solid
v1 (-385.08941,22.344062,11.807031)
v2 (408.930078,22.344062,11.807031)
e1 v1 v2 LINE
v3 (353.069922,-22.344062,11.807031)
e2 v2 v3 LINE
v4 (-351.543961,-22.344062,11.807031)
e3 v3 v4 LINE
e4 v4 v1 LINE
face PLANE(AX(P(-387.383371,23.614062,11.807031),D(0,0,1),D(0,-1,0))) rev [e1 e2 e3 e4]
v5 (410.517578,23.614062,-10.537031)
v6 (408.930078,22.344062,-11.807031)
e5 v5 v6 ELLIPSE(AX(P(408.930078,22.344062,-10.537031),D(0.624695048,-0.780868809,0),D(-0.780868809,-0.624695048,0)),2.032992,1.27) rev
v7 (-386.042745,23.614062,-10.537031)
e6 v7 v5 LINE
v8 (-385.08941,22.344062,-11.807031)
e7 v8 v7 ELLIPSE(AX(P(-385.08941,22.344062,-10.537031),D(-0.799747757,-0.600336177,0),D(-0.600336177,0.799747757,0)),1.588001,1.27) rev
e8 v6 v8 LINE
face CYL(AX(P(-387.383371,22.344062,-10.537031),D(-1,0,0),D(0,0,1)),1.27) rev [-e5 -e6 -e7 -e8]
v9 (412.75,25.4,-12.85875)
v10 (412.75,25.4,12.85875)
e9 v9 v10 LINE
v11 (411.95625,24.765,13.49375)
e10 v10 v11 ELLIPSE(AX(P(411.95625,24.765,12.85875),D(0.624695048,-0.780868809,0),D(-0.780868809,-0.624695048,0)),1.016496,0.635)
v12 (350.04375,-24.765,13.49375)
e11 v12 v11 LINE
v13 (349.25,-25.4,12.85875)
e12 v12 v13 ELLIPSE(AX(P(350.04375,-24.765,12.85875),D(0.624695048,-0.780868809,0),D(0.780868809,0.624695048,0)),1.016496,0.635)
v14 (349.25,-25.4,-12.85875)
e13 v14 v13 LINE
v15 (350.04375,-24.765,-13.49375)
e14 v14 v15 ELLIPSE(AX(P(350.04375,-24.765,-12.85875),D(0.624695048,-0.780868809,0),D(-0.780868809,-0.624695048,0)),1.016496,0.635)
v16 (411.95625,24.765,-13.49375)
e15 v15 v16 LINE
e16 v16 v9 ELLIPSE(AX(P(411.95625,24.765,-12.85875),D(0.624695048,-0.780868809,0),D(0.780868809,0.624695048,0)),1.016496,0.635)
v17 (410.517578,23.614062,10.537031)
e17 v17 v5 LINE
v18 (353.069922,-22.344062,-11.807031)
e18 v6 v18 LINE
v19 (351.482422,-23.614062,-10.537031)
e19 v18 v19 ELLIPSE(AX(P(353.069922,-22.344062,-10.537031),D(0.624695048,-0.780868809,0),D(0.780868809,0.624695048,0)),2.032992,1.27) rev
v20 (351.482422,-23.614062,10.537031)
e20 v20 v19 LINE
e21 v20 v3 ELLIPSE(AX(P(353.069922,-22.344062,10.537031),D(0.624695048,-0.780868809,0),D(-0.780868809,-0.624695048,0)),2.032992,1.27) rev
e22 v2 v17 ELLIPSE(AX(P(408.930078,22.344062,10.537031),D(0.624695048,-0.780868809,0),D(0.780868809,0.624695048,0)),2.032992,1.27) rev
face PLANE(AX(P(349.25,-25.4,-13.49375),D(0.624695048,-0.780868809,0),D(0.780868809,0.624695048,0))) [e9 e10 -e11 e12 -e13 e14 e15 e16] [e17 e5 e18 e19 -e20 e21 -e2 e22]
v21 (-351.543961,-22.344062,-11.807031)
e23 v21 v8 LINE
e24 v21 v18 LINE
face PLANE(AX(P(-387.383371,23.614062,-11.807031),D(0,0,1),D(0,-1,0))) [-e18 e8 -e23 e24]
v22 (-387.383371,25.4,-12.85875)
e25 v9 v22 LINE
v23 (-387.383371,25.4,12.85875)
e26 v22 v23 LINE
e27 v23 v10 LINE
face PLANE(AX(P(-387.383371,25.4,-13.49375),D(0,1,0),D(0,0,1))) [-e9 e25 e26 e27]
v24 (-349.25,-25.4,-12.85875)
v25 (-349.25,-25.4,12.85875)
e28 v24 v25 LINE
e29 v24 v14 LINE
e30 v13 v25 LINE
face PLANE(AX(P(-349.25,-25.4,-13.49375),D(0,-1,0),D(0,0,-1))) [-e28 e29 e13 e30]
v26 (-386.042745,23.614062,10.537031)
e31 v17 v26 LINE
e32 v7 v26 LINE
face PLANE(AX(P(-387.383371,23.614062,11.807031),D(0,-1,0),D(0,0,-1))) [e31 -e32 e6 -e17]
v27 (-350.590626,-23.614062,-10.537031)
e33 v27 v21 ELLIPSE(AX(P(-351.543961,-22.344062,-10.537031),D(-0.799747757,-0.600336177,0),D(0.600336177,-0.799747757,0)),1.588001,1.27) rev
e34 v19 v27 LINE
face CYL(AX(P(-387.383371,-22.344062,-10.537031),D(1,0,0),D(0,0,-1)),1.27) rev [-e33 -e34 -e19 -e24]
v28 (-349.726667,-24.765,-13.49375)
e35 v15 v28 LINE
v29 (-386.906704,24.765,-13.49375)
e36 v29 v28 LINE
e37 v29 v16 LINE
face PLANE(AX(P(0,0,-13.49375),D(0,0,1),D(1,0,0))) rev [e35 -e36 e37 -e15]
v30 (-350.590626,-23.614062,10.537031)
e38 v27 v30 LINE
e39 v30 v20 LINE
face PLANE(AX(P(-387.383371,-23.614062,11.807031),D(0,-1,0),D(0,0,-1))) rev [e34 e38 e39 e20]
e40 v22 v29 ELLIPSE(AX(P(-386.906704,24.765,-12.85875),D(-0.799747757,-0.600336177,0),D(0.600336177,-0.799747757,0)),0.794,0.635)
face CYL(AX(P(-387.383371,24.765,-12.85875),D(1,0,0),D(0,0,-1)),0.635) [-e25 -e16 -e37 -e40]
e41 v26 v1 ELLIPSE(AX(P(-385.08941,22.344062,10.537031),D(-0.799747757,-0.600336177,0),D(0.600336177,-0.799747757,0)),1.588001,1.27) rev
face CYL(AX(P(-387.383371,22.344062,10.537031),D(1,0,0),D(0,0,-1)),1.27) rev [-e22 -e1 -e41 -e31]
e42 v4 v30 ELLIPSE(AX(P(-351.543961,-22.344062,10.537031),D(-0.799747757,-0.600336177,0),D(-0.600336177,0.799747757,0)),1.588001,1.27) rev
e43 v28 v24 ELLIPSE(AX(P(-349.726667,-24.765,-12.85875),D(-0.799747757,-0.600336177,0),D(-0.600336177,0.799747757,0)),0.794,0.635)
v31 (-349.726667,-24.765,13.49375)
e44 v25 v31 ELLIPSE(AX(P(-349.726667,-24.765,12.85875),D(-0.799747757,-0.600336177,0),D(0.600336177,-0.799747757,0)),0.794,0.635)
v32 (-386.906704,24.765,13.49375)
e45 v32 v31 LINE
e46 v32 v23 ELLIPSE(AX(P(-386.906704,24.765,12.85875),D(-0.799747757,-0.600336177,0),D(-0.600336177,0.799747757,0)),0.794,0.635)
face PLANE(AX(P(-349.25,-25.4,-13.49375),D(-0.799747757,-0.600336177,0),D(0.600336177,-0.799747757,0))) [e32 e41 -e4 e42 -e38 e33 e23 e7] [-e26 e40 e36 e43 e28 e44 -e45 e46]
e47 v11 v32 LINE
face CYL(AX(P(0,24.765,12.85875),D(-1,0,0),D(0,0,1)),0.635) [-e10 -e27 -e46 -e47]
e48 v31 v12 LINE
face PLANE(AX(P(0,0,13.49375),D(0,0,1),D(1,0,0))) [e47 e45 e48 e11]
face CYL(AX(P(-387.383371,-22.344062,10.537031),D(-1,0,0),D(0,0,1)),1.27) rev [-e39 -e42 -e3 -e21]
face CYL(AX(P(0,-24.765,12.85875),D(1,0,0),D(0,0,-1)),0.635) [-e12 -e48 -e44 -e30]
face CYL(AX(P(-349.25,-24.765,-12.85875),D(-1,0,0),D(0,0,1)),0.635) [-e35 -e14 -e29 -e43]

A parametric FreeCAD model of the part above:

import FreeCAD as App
import Part
import Sketcher
from FreeCAD import Vector
Q = App.Units.Quantity


def edges_at(feature, points):
    """Names of the edges that pass closest to the given points."""
    edges = feature.Shape.Edges
    near = lambda p: min(range(len(edges)), key=lambda i: edges[i].distToShape(Part.Vertex(*p))[0])
    return sorted({f"Edge{near(p) + 1}" for p in points})

doc = App.newDocument("Part")
body = doc.addObject("PartDesign::Body", "Body")

sketch1 = body.newObject("Sketcher::SketchObject", "Sketch")
sketch1.AttachmentSupport = (doc.getObject("XY_Plane"), [""])
sketch1.MapMode = "FlatFace"
sketch1.addGeometry([
    Part.LineSegment(Vector(-387, 25, 0), Vector(-349, -25, 0)),
    Part.LineSegment(Vector(-349, -25, 0), Vector(349, -25, 0)),
    Part.LineSegment(Vector(349, -25, 0), Vector(413, 25, 0)),
    Part.LineSegment(Vector(413, 25, 0), Vector(-387, 25, 0)),
], False)
sketch1.addConstraint([
    Sketcher.Constraint("Coincident", 0, 2, 1, 1),
    Sketcher.Constraint("Coincident", 1, 2, 2, 1),
    Sketcher.Constraint("Coincident", 2, 2, 3, 1),
    Sketcher.Constraint("Coincident", 3, 2, 0, 1),
    Sketcher.Constraint("Horizontal", 1),
    Sketcher.Constraint("Horizontal", 3),
    Sketcher.Constraint("DistanceX", 1, 1, 1, 2, Q("27.5 in")),
    Sketcher.Constraint("DistanceY", 0, 2, -1, 1, Q("1 in")),
    Sketcher.Constraint("DistanceY", -1, 1, 2, 2, Q("1 in")),
    Sketcher.Constraint("DistanceX", 0, 2, 2, 2, Q("30 in")),
    Sketcher.Constraint("DistanceX", 0, 2, -1, 1, Q("13.75 in")),
    Sketcher.Constraint("DistanceX", 3, 2, 3, 1, 800.133371),
])
pad1 = body.newObject("PartDesign::Pad", "Pad")
pad1.Profile = sketch1
pad1.Type = "TwoLengths"
pad1.Length = Q("0.53125 in")
pad1.Length2 = Q("0.53125 in")

sketch2 = body.newObject("Sketcher::SketchObject", "Sketch001")
sketch2.AttachmentSupport = (doc.getObject("YZ_Plane"), [""])
sketch2.MapMode = "FlatFace"
sketch2.addGeometry([
    Part.LineSegment(Vector(24, 12, 0), Vector(-24, 12, 0)),
    Part.LineSegment(Vector(-24, 12, 0), Vector(-24, -12, 0)),
    Part.LineSegment(Vector(-24, -12, 0), Vector(24, -12, 0)),
    Part.LineSegment(Vector(24, -12, 0), Vector(24, 12, 0)),
], False)
sketch2.addConstraint([
    Sketcher.Constraint("Coincident", 0, 2, 1, 1),
    Sketcher.Constraint("Coincident", 1, 2, 2, 1),
    Sketcher.Constraint("Coincident", 2, 2, 3, 1),
    Sketcher.Constraint("Coincident", 3, 2, 0, 1),
    Sketcher.Constraint("Horizontal", 0),
    Sketcher.Constraint("Vertical", 1),
    Sketcher.Constraint("Horizontal", 2),
    Sketcher.Constraint("Vertical", 3),
    Sketcher.Constraint("Symmetric", 0, 2, 2, 2, -1, 1),
    Sketcher.Constraint("DistanceX", 0, 2, 0, 1, Q("1.859375 in")),
    Sketcher.Constraint("DistanceY", 1, 2, 1, 1, 23.614062),
])
pocket1 = body.newObject("PartDesign::Pocket", "Pocket")
pocket1.Profile = sketch2
pocket1.Type = "ThroughAll"
pocket1.Midplane = True
doc.recompute()

fillet = body.newObject("PartDesign::Fillet", "Fillet")
fillet.Base = (pocket1, edges_at(pocket1, [
    (0.446, -23.614, -11.807),
    (0.446, -23.614, 11.807),
    (12.237, 23.614, 11.807),
    (12.237, 23.614, -11.807),
]))
fillet.Radius = Q("0.05 in")
doc.recompute()

fillet2 = body.newObject("PartDesign::Fillet", "Fillet001")
fillet2.Base = (fillet, edges_at(fillet, [
    (12.683, 25.4, 13.494),
    (0, -25.4, 13.494),
    (0, -25.4, -13.494),
    (12.683, 25.4, -13.494),
]))
fillet2.Radius = Q("0.025 in")

doc.recompute()
